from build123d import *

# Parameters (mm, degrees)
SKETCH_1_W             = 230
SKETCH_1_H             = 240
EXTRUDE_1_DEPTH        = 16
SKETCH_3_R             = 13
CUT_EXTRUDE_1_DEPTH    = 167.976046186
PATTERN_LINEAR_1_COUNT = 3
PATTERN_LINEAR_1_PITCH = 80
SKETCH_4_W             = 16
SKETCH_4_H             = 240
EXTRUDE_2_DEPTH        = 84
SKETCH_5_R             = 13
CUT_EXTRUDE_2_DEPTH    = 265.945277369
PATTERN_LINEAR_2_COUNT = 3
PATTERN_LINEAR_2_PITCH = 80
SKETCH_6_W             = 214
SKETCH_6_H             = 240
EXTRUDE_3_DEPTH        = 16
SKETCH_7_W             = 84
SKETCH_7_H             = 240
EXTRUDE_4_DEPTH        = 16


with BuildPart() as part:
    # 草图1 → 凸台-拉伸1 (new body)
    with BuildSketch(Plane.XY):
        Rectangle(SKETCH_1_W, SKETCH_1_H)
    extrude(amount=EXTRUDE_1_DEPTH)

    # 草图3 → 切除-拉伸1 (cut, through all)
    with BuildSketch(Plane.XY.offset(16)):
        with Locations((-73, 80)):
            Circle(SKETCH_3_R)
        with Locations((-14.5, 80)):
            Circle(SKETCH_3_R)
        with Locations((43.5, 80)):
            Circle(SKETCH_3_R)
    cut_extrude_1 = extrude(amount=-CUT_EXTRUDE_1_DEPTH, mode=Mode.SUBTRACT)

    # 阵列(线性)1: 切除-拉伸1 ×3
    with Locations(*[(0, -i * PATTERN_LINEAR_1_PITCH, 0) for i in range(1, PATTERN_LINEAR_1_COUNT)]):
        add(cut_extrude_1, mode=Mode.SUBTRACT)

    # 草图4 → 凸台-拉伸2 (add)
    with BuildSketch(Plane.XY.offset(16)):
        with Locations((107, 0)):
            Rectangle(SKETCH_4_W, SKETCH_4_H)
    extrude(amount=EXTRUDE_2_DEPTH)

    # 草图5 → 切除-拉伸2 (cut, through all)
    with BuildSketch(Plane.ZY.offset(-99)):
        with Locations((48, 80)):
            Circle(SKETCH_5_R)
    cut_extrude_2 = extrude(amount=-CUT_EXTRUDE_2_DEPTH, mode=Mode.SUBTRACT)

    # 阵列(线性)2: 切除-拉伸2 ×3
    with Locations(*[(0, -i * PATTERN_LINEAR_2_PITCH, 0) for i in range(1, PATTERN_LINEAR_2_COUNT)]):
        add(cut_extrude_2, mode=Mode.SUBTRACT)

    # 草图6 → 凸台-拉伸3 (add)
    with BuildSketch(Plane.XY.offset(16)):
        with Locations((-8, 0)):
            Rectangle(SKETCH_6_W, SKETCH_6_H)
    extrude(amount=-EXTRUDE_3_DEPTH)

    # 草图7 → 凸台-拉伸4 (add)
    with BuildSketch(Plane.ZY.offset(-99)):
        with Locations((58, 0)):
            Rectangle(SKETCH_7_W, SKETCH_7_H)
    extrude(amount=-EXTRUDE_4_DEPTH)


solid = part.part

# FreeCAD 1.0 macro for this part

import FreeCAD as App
import Part
import Sketcher
Q = App.Units.Quantity


def add_polygon(sketch, points):
    """Adds a closed chain of lines whose ends are joined by coincident constraints."""
    first, n = sketch.GeometryCount, len(points)
    for a, b in zip(points, points[1:] + points[:1]):
        sketch.addGeometry(Part.LineSegment(App.Vector(*a, 0), App.Vector(*b, 0)), False)
    for i in range(n):
        sketch.addConstraint(Sketcher.Constraint("Coincident", first + i, 2, first + (i + 1) % n, 1))

doc = App.newDocument("Part")
body = doc.addObject("PartDesign::Body", "Body")

# Sketch on XY plane
sketch1 = body.newObject("Sketcher::SketchObject", "Sketch")
sketch1.AttachmentSupport = (doc.getObject("XY_Plane"), [""])
sketch1.MapMode = "FlatFace"
add_polygon(sketch1, [(-115, 120), (-115, -120), (115, -120), (115, 120)])  # lines 0-3
sketch1.addConstraint([
    Sketcher.Constraint("Vertical", 0),
    Sketcher.Constraint("Horizontal", 1),
    Sketcher.Constraint("Vertical", 2),
    Sketcher.Constraint("Horizontal", 3),
    Sketcher.Constraint("Symmetric", 0, 2, 2, 2, -1, 1),
    Sketcher.Constraint("DistanceX", 1, 1, 1, 2, Q("230 mm")),
    Sketcher.Constraint("DistanceY", 0, 2, 0, 1, Q("240 mm")),
])
pad1 = body.newObject("PartDesign::Pad", "Pad")
pad1.Profile = sketch1
pad1.Length = 16

# Sketch on XY plane
sketch2 = body.newObject("Sketcher::SketchObject", "Sketch001")
sketch2.AttachmentSupport = (doc.getObject("XY_Plane"), [""])
sketch2.MapMode = "FlatFace"
sketch2.AttachmentOffset = App.Placement(App.Vector(0, 0, 16), App.Rotation())
sketch2.addGeometry([
    Part.Circle(App.Vector(-73, 80, 0), App.Vector(0, 0, 1), 13),
    Part.Circle(App.Vector(-14, 80, 0), App.Vector(0, 0, 1), 13),
    Part.Circle(App.Vector(44, 80, 0), App.Vector(0, 0, 1), 13),
], False)
sketch2.addConstraint([
    Sketcher.Constraint("Equal", 0, 1),
    Sketcher.Constraint("Equal", 1, 2),
    Sketcher.Constraint("Horizontal", 0, 3, 1, 3),
    Sketcher.Constraint("Horizontal", 1, 3, 2, 3),
    Sketcher.Constraint("Diameter", 0, Q("26 mm")),
    Sketcher.Constraint("DistanceX", 0, 3, -1, 1, Q("73 mm")),
    Sketcher.Constraint("DistanceY", -1, 1, 0, 3, Q("80 mm")),
    Sketcher.Constraint("DistanceX", 1, 3, 2, 3, Q("58 mm")),
    Sketcher.Constraint("DistanceX", 1, 3, -1, 1, Q("14.5 mm")),
])
pocket1 = body.newObject("PartDesign::Pocket", "Pocket")
pocket1.Profile = sketch2
pocket1.Type = "ThroughAll"
doc.recompute()

linearpattern = body.newObject("PartDesign::LinearPattern", "LinearPattern")
linearpattern.Originals = [pocket1]
linearpattern.Direction = (doc.getObject("Y_Axis"), [""])
linearpattern.Mode = "offset"
linearpattern.Offset = 80
linearpattern.Occurrences = 3
linearpattern.Reversed = True
body.Tip = linearpattern

# Sketch on XY plane
sketch3 = body.newObject("Sketcher::SketchObject", "Sketch002")
sketch3.AttachmentSupport = (doc.getObject("XY_Plane"), [""])
sketch3.MapMode = "FlatFace"
sketch3.AttachmentOffset = App.Placement(App.Vector(0, 0, 16), App.Rotation())
add_polygon(sketch3, [(99, 120), (99, -120), (115, -120), (115, 120)])  # lines 0-3
sketch3.addConstraint([
    Sketcher.Constraint("Vertical", 0),
    Sketcher.Constraint("Horizontal", 1),
    Sketcher.Constraint("Vertical", 2),
    Sketcher.Constraint("Horizontal", 3),
    Sketcher.Constraint("DistanceX", 1, 1, 1, 2, Q("16 mm")),
    Sketcher.Constraint("DistanceY", 0, 2, 0, 1, Q("240 mm")),
    Sketcher.Constraint("DistanceX", -1, 1, 0, 2, Q("99 mm")),
    Sketcher.Constraint("DistanceY", 0, 2, -1, 1, Q("120 mm")),
])
pad2 = body.newObject("PartDesign::Pad", "Pad001")
pad2.Profile = sketch3
pad2.Length = 84

# Sketch on YZ plane
sketch4 = body.newObject("Sketcher::SketchObject", "Sketch003")
sketch4.AttachmentSupport = (doc.getObject("YZ_Plane"), [""])
sketch4.MapMode = "FlatFace"
sketch4.AttachmentOffset = App.Placement(App.Vector(0, 0, 99), App.Rotation())
sketch4.addGeometry(Part.Circle(App.Vector(80, 48, 0), App.Vector(0, 0, 1), 13), False)
sketch4.addConstraint([
    Sketcher.Constraint("Diameter", 0, Q("26 mm")),
    Sketcher.Constraint("DistanceX", -1, 1, 0, 3, Q("80 mm")),
    Sketcher.Constraint("DistanceY", -1, 1, 0, 3, Q("48 mm")),
])
pocket2 = body.newObject("PartDesign::Pocket", "Pocket001")
pocket2.Profile = sketch4
pocket2.Type = "ThroughAll"
pocket2.Reversed = True
doc.recompute()

linearpattern2 = body.newObject("PartDesign::LinearPattern", "LinearPattern001")
linearpattern2.Originals = [pocket2]
linearpattern2.Direction = (doc.getObject("Y_Axis"), [""])
linearpattern2.Mode = "offset"
linearpattern2.Offset = 80
linearpattern2.Occurrences = 3
linearpattern2.Reversed = True
body.Tip = linearpattern2

# Sketch on XY plane
sketch5 = body.newObject("Sketcher::SketchObject", "Sketch004")
sketch5.AttachmentSupport = (doc.getObject("XY_Plane"), [""])
sketch5.MapMode = "FlatFace"
sketch5.AttachmentOffset = App.Placement(App.Vector(0, 0, 16), App.Rotation())
add_polygon(sketch5, [(-115, 120), (-115, -120), (99, -120), (99, 120)])  # lines 0-3
sketch5.addConstraint([
    Sketcher.Constraint("Vertical", 0),
    Sketcher.Constraint("Horizontal", 1),
    Sketcher.Constraint("Vertical", 2),
    Sketcher.Constraint("Horizontal", 3),
    Sketcher.Constraint("DistanceX", 1, 1, 1, 2, Q("214 mm")),
    Sketcher.Constraint("DistanceY", 0, 2, 0, 1, Q("240 mm")),
    Sketcher.Constraint("DistanceX", 0, 2, -1, 1, Q("115 mm")),
    Sketcher.Constraint("DistanceY", 0, 2, -1, 1, Q("120 mm")),
])
pad3 = body.newObject("PartDesign::Pad", "Pad002")
pad3.Profile = sketch5
pad3.Length = 16
pad3.Reversed = True

# Sketch on YZ plane
sketch6 = body.newObject("Sketcher::SketchObject", "Sketch005")
sketch6.AttachmentSupport = (doc.getObject("YZ_Plane"), [""])
sketch6.MapMode = "FlatFace"
sketch6.AttachmentOffset = App.Placement(App.Vector(0, 0, 99), App.Rotation())
add_polygon(sketch6, [(120, 16), (-120, 16), (-120, 100), (120, 100)])  # lines 0-3
sketch6.addConstraint([
    Sketcher.Constraint("Horizontal", 0),
    Sketcher.Constraint("Vertical", 1),
    Sketcher.Constraint("Horizontal", 2),
    Sketcher.Constraint("Vertical", 3),
    Sketcher.Constraint("DistanceX", 0, 2, 0, 1, Q("240 mm")),
    Sketcher.Constraint("DistanceY", 1, 1, 1, 2, Q("84 mm")),
    Sketcher.Constraint("DistanceX", 0, 2, -1, 1, Q("120 mm")),
    Sketcher.Constraint("DistanceY", -1, 1, 0, 2, Q("16 mm")),
])
pad4 = body.newObject("PartDesign::Pad", "Pad003")
pad4.Profile = sketch6
pad4.Length = 16

doc.recompute()
